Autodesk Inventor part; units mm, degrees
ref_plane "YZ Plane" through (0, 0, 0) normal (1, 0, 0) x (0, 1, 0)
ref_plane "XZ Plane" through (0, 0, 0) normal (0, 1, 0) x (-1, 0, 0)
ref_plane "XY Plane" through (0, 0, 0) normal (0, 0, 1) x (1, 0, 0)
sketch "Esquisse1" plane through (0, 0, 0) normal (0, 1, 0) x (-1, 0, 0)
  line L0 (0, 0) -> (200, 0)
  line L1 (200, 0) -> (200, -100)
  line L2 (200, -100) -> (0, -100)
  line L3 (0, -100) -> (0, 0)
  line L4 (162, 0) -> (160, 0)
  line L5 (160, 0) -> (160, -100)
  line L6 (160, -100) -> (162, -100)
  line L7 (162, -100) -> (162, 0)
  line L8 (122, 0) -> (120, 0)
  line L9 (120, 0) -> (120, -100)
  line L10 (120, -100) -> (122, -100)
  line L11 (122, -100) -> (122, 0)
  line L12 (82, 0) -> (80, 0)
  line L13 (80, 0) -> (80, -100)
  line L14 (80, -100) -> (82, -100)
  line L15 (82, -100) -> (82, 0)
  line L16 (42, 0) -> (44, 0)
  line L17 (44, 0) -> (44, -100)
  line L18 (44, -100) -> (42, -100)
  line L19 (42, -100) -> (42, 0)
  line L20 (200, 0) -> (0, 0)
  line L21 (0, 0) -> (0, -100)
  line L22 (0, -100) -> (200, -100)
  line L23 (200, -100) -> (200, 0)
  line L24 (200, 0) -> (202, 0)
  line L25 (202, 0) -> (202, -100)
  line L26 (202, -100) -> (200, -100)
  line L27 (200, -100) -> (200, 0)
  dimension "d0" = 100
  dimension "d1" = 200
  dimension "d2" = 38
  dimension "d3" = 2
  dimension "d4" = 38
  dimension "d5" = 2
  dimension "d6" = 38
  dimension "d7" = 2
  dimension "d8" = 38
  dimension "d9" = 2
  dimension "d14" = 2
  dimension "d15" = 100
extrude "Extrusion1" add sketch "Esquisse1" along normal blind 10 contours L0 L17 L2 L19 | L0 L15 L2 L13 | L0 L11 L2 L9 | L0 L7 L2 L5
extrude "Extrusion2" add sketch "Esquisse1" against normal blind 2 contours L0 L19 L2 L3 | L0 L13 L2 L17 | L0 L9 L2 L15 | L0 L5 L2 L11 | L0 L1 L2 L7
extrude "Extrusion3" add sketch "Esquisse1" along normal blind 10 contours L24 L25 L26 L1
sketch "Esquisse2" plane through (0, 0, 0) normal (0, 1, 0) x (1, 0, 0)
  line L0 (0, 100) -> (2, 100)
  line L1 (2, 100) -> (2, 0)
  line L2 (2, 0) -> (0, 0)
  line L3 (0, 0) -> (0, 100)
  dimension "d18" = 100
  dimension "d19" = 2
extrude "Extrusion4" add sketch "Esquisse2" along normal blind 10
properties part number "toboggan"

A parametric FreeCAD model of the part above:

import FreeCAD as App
import Part
import Sketcher

V = App.Vector

doc = App.newDocument("Part")
body = doc.addObject("PartDesign::Body", "Body")
body.AllowCompound = True

sketch1 = body.newObject("Sketcher::SketchObject", "Sketch")
sketch1.AttachmentSupport = (doc.getObject("XZ_Plane"), [""])
sketch1.MapMode = "FlatFace"
sketch1.addGeometry(Part.LineSegment(V(-44, 0, 0), V(-42, 0, 0)), False)
sketch1.addGeometry(Part.LineSegment(V(-42, 0, 0), V(-42, -100, 0)), False)
sketch1.addGeometry(Part.LineSegment(V(-42, -100, 0), V(-44, -100, 0)), False)
sketch1.addGeometry(Part.LineSegment(V(-44, -100, 0), V(-44, 0, 0)), False)
sketch1.addGeometry(Part.LineSegment(V(-82, 0, 0), V(-80, 0, 0)), False)
sketch1.addGeometry(Part.LineSegment(V(-80, 0, 0), V(-80, -100, 0)), False)
sketch1.addGeometry(Part.LineSegment(V(-80, -100, 0), V(-82, -100, 0)), False)
sketch1.addGeometry(Part.LineSegment(V(-82, -100, 0), V(-82, 0, 0)), False)
sketch1.addGeometry(Part.LineSegment(V(-122, 0, 0), V(-120, 0, 0)), False)
sketch1.addGeometry(Part.LineSegment(V(-120, 0, 0), V(-120, -100, 0)), False)
sketch1.addGeometry(Part.LineSegment(V(-120, -100, 0), V(-122, -100, 0)), False)
sketch1.addGeometry(Part.LineSegment(V(-122, -100, 0), V(-122, 0, 0)), False)
sketch1.addGeometry(Part.LineSegment(V(-162, 0, 0), V(-160, 0, 0)), False)
sketch1.addGeometry(Part.LineSegment(V(-160, 0, 0), V(-160, -100, 0)), False)
sketch1.addGeometry(Part.LineSegment(V(-160, -100, 0), V(-162, -100, 0)), False)
sketch1.addGeometry(Part.LineSegment(V(-162, -100, 0), V(-162, 0, 0)), False)
sketch1.addConstraint(Sketcher.Constraint("Coincident", 0, 2, 1, 1))
sketch1.addConstraint(Sketcher.Constraint("Coincident", 1, 2, 2, 1))
sketch1.addConstraint(Sketcher.Constraint("Coincident", 2, 2, 3, 1))
sketch1.addConstraint(Sketcher.Constraint("Coincident", 3, 2, 0, 1))
sketch1.addConstraint(Sketcher.Constraint("Coincident", 4, 2, 5, 1))
sketch1.addConstraint(Sketcher.Constraint("Coincident", 5, 2, 6, 1))
sketch1.addConstraint(Sketcher.Constraint("Coincident", 6, 2, 7, 1))
sketch1.addConstraint(Sketcher.Constraint("Coincident", 7, 2, 4, 1))
sketch1.addConstraint(Sketcher.Constraint("Coincident", 8, 2, 9, 1))
sketch1.addConstraint(Sketcher.Constraint("Coincident", 9, 2, 10, 1))
sketch1.addConstraint(Sketcher.Constraint("Coincident", 10, 2, 11, 1))
sketch1.addConstraint(Sketcher.Constraint("Coincident", 11, 2, 8, 1))
sketch1.addConstraint(Sketcher.Constraint("Coincident", 12, 2, 13, 1))
sketch1.addConstraint(Sketcher.Constraint("Coincident", 13, 2, 14, 1))
sketch1.addConstraint(Sketcher.Constraint("Coincident", 14, 2, 15, 1))
sketch1.addConstraint(Sketcher.Constraint("Coincident", 15, 2, 12, 1))
sketch1.addConstraint(Sketcher.Constraint("Horizontal", 0))
sketch1.addConstraint(Sketcher.Constraint("Vertical", 1))
sketch1.addConstraint(Sketcher.Constraint("Horizontal", 2))
sketch1.addConstraint(Sketcher.Constraint("Vertical", 3))
sketch1.addConstraint(Sketcher.Constraint("Horizontal", 4))
sketch1.addConstraint(Sketcher.Constraint("Vertical", 5))
sketch1.addConstraint(Sketcher.Constraint("Horizontal", 6))
sketch1.addConstraint(Sketcher.Constraint("Vertical", 7))
sketch1.addConstraint(Sketcher.Constraint("Horizontal", 8))
sketch1.addConstraint(Sketcher.Constraint("Vertical", 9))
sketch1.addConstraint(Sketcher.Constraint("Horizontal", 10))
sketch1.addConstraint(Sketcher.Constraint("Vertical", 11))
sketch1.addConstraint(Sketcher.Constraint("Horizontal", 12))
sketch1.addConstraint(Sketcher.Constraint("Vertical", 13))
sketch1.addConstraint(Sketcher.Constraint("Horizontal", 14))
sketch1.addConstraint(Sketcher.Constraint("Vertical", 15))
sketch1.addConstraint(Sketcher.Constraint("PointOnObject", 0, 2, -1))
sketch1.addConstraint(Sketcher.Constraint("PointOnObject", 4, 2, -1))
sketch1.addConstraint(Sketcher.Constraint("PointOnObject", 8, 2, -1))
sketch1.addConstraint(Sketcher.Constraint("PointOnObject", 12, 2, -1))
sketch1.addConstraint(Sketcher.Constraint("Horizontal", 2, 2, 5, 2))
sketch1.addConstraint(Sketcher.Constraint("Horizontal", 6, 2, 9, 2))
sketch1.addConstraint(Sketcher.Constraint("Horizontal", 10, 2, 13, 2))
sketch1.addConstraint(Sketcher.Constraint("Equal", 2, 4))
sketch1.addConstraint(Sketcher.Constraint("Equal", 6, 8))
sketch1.addConstraint(Sketcher.Constraint("Equal", 10, 12))
sketch1.addConstraint(Sketcher.Constraint("DistanceX", 0, 1, 0, 2, 2.0))
sketch1.addConstraint(Sketcher.Constraint("DistanceY", 1, 2, 1, 1, 100.0))
sketch1.addConstraint(Sketcher.Constraint("DistanceX", 4, 2, 0, 2, 38.0))
sketch1.addConstraint(Sketcher.Constraint("DistanceX", 8, 2, 7, 2, 38.0))
sketch1.addConstraint(Sketcher.Constraint("DistanceX", 12, 2, 11, 2, 38.0))
sketch1.addConstraint(Sketcher.Constraint("DistanceX", 0, 2, -1, 1, 42.0))
pad1 = body.newObject("PartDesign::Pad", "Pad")
pad1.Profile = sketch1
pad1.Length = 10
pad1.Reversed = True

sketch2 = body.newObject("Sketcher::SketchObject", "Sketch001")
sketch2.AttachmentSupport = (doc.getObject("XZ_Plane"), [""])
sketch2.MapMode = "FlatFace"
sketch2.addGeometry(Part.LineSegment(V(-42, 0, 0), V(0, 0, 0)), False)
sketch2.addGeometry(Part.LineSegment(V(0, 0, 0), V(0, -100, 0)), False)
sketch2.addGeometry(Part.LineSegment(V(0, -100, 0), V(-42, -100, 0)), False)
sketch2.addGeometry(Part.LineSegment(V(-42, -100, 0), V(-42, 0, 0)), False)
sketch2.addGeometry(Part.LineSegment(V(-80, 0, 0), V(-44, 0, 0)), False)
sketch2.addGeometry(Part.LineSegment(V(-44, 0, 0), V(-44, -100, 0)), False)
sketch2.addGeometry(Part.LineSegment(V(-44, -100, 0), V(-80, -100, 0)), False)
sketch2.addGeometry(Part.LineSegment(V(-80, -100, 0), V(-80, 0, 0)), False)
sketch2.addGeometry(Part.LineSegment(V(-120, 0, 0), V(-82, 0, 0)), False)
sketch2.addGeometry(Part.LineSegment(V(-82, 0, 0), V(-82, -100, 0)), False)
sketch2.addGeometry(Part.LineSegment(V(-82, -100, 0), V(-120, -100, 0)), False)
sketch2.addGeometry(Part.LineSegment(V(-120, -100, 0), V(-120, 0, 0)), False)
sketch2.addGeometry(Part.LineSegment(V(-160, 0, 0), V(-122, 0, 0)), False)
sketch2.addGeometry(Part.LineSegment(V(-122, 0, 0), V(-122, -100, 0)), False)
sketch2.addGeometry(Part.LineSegment(V(-122, -100, 0), V(-160, -100, 0)), False)
sketch2.addGeometry(Part.LineSegment(V(-160, -100, 0), V(-160, 0, 0)), False)
sketch2.addGeometry(Part.LineSegment(V(-200, 0, 0), V(-162, 0, 0)), False)
sketch2.addGeometry(Part.LineSegment(V(-162, 0, 0), V(-162, -100, 0)), False)
sketch2.addGeometry(Part.LineSegment(V(-162, -100, 0), V(-200, -100, 0)), False)
sketch2.addGeometry(Part.LineSegment(V(-200, -100, 0), V(-200, 0, 0)), False)
sketch2.addConstraint(Sketcher.Constraint("Coincident", 0, 2, 1, 1))
sketch2.addConstraint(Sketcher.Constraint("Coincident", 1, 2, 2, 1))
sketch2.addConstraint(Sketcher.Constraint("Coincident", 2, 2, 3, 1))
sketch2.addConstraint(Sketcher.Constraint("Coincident", 3, 2, 0, 1))
sketch2.addConstraint(Sketcher.Constraint("Coincident", 4, 2, 5, 1))
sketch2.addConstraint(Sketcher.Constraint("Coincident", 5, 2, 6, 1))
sketch2.addConstraint(Sketcher.Constraint("Coincident", 6, 2, 7, 1))
sketch2.addConstraint(Sketcher.Constraint("Coincident", 7, 2, 4, 1))
sketch2.addConstraint(Sketcher.Constraint("Coincident", 8, 2, 9, 1))
sketch2.addConstraint(Sketcher.Constraint("Coincident", 9, 2, 10, 1))
sketch2.addConstraint(Sketcher.Constraint("Coincident", 10, 2, 11, 1))
sketch2.addConstraint(Sketcher.Constraint("Coincident", 11, 2, 8, 1))
sketch2.addConstraint(Sketcher.Constraint("Coincident", 12, 2, 13, 1))
sketch2.addConstraint(Sketcher.Constraint("Coincident", 13, 2, 14, 1))
sketch2.addConstraint(Sketcher.Constraint("Coincident", 14, 2, 15, 1))
sketch2.addConstraint(Sketcher.Constraint("Coincident", 15, 2, 12, 1))
sketch2.addConstraint(Sketcher.Constraint("Coincident", 16, 2, 17, 1))
sketch2.addConstraint(Sketcher.Constraint("Coincident", 17, 2, 18, 1))
sketch2.addConstraint(Sketcher.Constraint("Coincident", 18, 2, 19, 1))
sketch2.addConstraint(Sketcher.Constraint("Coincident", 19, 2, 16, 1))
sketch2.addConstraint(Sketcher.Constraint("Horizontal", 0))
sketch2.addConstraint(Sketcher.Constraint("Vertical", 1))
sketch2.addConstraint(Sketcher.Constraint("Horizontal", 2))
sketch2.addConstraint(Sketcher.Constraint("Vertical", 3))
sketch2.addConstraint(Sketcher.Constraint("Horizontal", 4))
sketch2.addConstraint(Sketcher.Constraint("Vertical", 5))
sketch2.addConstraint(Sketcher.Constraint("Horizontal", 6))
sketch2.addConstraint(Sketcher.Constraint("Vertical", 7))
sketch2.addConstraint(Sketcher.Constraint("Horizontal", 8))
sketch2.addConstraint(Sketcher.Constraint("Vertical", 9))
sketch2.addConstraint(Sketcher.Constraint("Horizontal", 10))
sketch2.addConstraint(Sketcher.Constraint("Vertical", 11))
sketch2.addConstraint(Sketcher.Constraint("Horizontal", 12))
sketch2.addConstraint(Sketcher.Constraint("Vertical", 13))
sketch2.addConstraint(Sketcher.Constraint("Horizontal", 14))
sketch2.addConstraint(Sketcher.Constraint("Vertical", 15))
sketch2.addConstraint(Sketcher.Constraint("Horizontal", 16))
sketch2.addConstraint(Sketcher.Constraint("Vertical", 17))
sketch2.addConstraint(Sketcher.Constraint("Horizontal", 18))
sketch2.addConstraint(Sketcher.Constraint("Vertical", 19))
sketch2.addConstraint(Sketcher.Constraint("Coincident", 0, 2, -1, 1))
sketch2.addConstraint(Sketcher.Constraint("PointOnObject", 4, 2, -1))
sketch2.addConstraint(Sketcher.Constraint("PointOnObject", 8, 2, -1))
sketch2.addConstraint(Sketcher.Constraint("PointOnObject", 12, 2, -1))
sketch2.addConstraint(Sketcher.Constraint("PointOnObject", 16, 2, -1))
sketch2.addConstraint(Sketcher.Constraint("Horizontal", 2, 2, 5, 2))
sketch2.addConstraint(Sketcher.Constraint("Horizontal", 6, 2, 9, 2))
sketch2.addConstraint(Sketcher.Constraint("Horizontal", 10, 2, 13, 2))
sketch2.addConstraint(Sketcher.Constraint("Horizontal", 14, 2, 17, 2))
sketch2.addConstraint(Sketcher.Constraint("Equal", 10, 12))
sketch2.addConstraint(Sketcher.Constraint("Equal", 14, 16))
sketch2.addConstraint(Sketcher.Constraint("DistanceX", 8, 1, 8, 2, 38.0))
sketch2.addConstraint(Sketcher.Constraint("DistanceY", 1, 2, 1, 1, 100.0))
sketch2.addConstraint(Sketcher.Constraint("DistanceX", 18, 2, -1, 1, 200.0))
sketch2.addConstraint(Sketcher.Constraint("DistanceX", 4, 2, 3, 2, 2.0))
sketch2.addConstraint(Sketcher.Constraint("DistanceX", 6, 2, 2, 2, 38.0))
sketch2.addConstraint(Sketcher.Constraint("DistanceX", 8, 2, 7, 2, 2.0))
sketch2.addConstraint(Sketcher.Constraint("DistanceX", 12, 2, 11, 2, 2.0))
sketch2.addConstraint(Sketcher.Constraint("DistanceX", 16, 2, 15, 2, 2.0))
pad2 = body.newObject("PartDesign::Pad", "Pad001")
pad2.Profile = sketch2
pad2.Length = 2

sketch3 = body.newObject("Sketcher::SketchObject", "Sketch002")
sketch3.AttachmentSupport = (doc.getObject("XZ_Plane"), [""])
sketch3.MapMode = "FlatFace"
sketch3.addGeometry(Part.LineSegment(V(-202, 0, 0), V(-200, 0, 0)), False)
sketch3.addGeometry(Part.LineSegment(V(-200, 0, 0), V(-200, -100, 0)), False)
sketch3.addGeometry(Part.LineSegment(V(-200, -100, 0), V(-202, -100, 0)), False)
sketch3.addGeometry(Part.LineSegment(V(-202, -100, 0), V(-202, 0, 0)), False)
sketch3.addConstraint(Sketcher.Constraint("Coincident", 0, 2, 1, 1))
sketch3.addConstraint(Sketcher.Constraint("Coincident", 1, 2, 2, 1))
sketch3.addConstraint(Sketcher.Constraint("Coincident", 2, 2, 3, 1))
sketch3.addConstraint(Sketcher.Constraint("Coincident", 3, 2, 0, 1))
sketch3.addConstraint(Sketcher.Constraint("Horizontal", 0))
sketch3.addConstraint(Sketcher.Constraint("Vertical", 1))
sketch3.addConstraint(Sketcher.Constraint("Horizontal", 2))
sketch3.addConstraint(Sketcher.Constraint("Vertical", 3))
sketch3.addConstraint(Sketcher.Constraint("PointOnObject", 0, 2, -1))
sketch3.addConstraint(Sketcher.Constraint("DistanceX", 0, 1, 0, 2, 2.0))
sketch3.addConstraint(Sketcher.Constraint("DistanceY", 1, 2, 1, 1, 100.0))
sketch3.addConstraint(Sketcher.Constraint("DistanceX", 0, 2, -1, 1, 200.0))
pad3 = body.newObject("PartDesign::Pad", "Pad002")
pad3.Profile = sketch3
pad3.Length = 10
pad3.Reversed = True

sketch4 = body.newObject("Sketcher::SketchObject", "Sketch003")
sketch4.AttachmentSupport = (doc.getObject("XZ_Plane"), [""])
sketch4.MapMode = "FlatFace"
sketch4.addGeometry(Part.LineSegment(V(2, -100, 0), V(0, -100, 0)), False)
sketch4.addGeometry(Part.LineSegment(V(0, -100, 0), V(0, 0, 0)), False)
sketch4.addGeometry(Part.LineSegment(V(0, 0, 0), V(2, 0, 0)), False)
sketch4.addGeometry(Part.LineSegment(V(2, 0, 0), V(2, -100, 0)), False)
sketch4.addConstraint(Sketcher.Constraint("Coincident", 0, 2, 1, 1))
sketch4.addConstraint(Sketcher.Constraint("Coincident", 1, 2, 2, 1))
sketch4.addConstraint(Sketcher.Constraint("Coincident", 2, 2, 3, 1))
sketch4.addConstraint(Sketcher.Constraint("Coincident", 3, 2, 0, 1))
sketch4.addConstraint(Sketcher.Constraint("Horizontal", 0))
sketch4.addConstraint(Sketcher.Constraint("Vertical", 1))
sketch4.addConstraint(Sketcher.Constraint("Horizontal", 2))
sketch4.addConstraint(Sketcher.Constraint("Vertical", 3))
sketch4.addConstraint(Sketcher.Constraint("Coincident", 1, 2, -1, 1))
sketch4.addConstraint(Sketcher.Constraint("DistanceX", 0, 2, 0, 1, 2.0))
sketch4.addConstraint(Sketcher.Constraint("DistanceY", 1, 1, 1, 2, 100.0))
pad4 = body.newObject("PartDesign::Pad", "Pad003")
pad4.Profile = sketch4
pad4.Length = 10
pad4.Reversed = True

doc.recompute()
